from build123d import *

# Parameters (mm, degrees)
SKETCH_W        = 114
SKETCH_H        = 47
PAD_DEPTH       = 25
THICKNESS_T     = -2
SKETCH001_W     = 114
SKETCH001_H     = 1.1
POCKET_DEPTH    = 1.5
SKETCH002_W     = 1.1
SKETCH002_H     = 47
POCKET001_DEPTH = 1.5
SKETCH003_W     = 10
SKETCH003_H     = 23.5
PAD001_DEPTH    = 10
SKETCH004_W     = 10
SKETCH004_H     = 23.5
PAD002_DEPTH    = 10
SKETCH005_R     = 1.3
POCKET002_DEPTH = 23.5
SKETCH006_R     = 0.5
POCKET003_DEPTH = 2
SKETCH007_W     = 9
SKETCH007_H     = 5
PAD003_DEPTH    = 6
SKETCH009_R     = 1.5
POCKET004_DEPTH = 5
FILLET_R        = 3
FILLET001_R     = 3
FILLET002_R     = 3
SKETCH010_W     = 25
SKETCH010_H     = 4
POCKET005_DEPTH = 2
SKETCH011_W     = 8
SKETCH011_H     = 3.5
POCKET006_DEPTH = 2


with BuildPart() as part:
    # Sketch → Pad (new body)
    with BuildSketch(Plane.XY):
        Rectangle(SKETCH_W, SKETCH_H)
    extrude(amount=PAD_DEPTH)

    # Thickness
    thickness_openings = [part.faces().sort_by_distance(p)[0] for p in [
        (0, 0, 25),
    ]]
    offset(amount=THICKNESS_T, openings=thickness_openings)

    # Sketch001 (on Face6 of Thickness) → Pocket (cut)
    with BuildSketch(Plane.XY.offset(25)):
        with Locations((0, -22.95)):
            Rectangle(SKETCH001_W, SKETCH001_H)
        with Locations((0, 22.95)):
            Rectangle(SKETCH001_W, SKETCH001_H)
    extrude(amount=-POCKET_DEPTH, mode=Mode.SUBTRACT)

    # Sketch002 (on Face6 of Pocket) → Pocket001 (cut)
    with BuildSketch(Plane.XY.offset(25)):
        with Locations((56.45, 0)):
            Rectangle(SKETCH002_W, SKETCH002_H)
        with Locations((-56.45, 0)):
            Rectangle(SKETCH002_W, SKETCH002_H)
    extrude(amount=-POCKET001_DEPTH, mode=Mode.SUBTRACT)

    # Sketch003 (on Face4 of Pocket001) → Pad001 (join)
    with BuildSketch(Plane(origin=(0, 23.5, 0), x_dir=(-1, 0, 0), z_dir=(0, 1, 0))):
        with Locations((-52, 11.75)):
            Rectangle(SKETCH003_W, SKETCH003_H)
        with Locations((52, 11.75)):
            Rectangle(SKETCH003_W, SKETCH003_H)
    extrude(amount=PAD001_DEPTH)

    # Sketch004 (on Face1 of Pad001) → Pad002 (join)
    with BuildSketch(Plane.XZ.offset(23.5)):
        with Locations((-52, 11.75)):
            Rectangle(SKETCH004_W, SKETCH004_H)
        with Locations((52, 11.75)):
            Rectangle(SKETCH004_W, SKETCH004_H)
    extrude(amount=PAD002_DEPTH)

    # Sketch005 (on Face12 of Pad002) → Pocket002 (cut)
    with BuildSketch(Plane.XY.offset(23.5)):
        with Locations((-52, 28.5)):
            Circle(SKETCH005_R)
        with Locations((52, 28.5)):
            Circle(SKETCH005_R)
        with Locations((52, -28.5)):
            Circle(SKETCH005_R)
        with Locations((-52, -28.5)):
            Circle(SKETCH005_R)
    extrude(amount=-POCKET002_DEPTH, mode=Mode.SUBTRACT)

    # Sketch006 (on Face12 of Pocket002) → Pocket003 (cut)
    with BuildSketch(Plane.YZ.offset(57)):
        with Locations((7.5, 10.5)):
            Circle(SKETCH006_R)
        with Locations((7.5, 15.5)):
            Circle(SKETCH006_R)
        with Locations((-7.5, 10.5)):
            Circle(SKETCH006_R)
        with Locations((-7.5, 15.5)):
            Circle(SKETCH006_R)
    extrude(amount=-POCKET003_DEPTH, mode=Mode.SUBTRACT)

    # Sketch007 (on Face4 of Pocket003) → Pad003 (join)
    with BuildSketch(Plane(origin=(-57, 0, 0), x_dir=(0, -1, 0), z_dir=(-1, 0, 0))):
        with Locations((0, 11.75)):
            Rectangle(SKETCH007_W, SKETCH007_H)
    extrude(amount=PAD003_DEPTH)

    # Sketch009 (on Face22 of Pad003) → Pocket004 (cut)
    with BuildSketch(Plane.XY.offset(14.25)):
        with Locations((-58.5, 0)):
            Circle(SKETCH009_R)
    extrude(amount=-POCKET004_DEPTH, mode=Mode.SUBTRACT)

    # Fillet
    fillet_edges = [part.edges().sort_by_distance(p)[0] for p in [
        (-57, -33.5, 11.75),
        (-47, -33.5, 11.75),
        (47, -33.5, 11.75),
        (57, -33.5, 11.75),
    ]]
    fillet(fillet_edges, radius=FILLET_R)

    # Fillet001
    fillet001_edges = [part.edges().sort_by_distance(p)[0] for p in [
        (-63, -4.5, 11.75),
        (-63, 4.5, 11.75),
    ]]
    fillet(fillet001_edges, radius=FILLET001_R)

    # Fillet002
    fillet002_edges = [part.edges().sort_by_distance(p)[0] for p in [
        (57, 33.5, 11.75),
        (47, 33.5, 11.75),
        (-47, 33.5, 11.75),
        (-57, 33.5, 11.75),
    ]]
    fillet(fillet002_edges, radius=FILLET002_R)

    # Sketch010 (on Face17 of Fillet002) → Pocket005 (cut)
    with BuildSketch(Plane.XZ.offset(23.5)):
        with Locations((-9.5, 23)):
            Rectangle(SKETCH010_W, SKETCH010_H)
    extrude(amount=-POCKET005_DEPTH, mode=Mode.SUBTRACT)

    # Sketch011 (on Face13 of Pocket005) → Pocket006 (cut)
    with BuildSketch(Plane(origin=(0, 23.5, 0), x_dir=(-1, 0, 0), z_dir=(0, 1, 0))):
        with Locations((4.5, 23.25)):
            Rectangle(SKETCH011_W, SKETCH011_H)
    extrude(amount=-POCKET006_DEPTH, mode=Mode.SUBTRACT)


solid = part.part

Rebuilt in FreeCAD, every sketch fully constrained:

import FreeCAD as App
import Part
import Sketcher

V = App.Vector


def edges_at(feature, points):
    """Names of the edges that pass closest to the given points."""
    edges = feature.Shape.Edges
    near = lambda p: min(range(len(edges)), key=lambda i: edges[i].distToShape(Part.Vertex(*p))[0])
    return sorted({f"Edge{near(p) + 1}" for p in points})


def faces_at(feature, points):
    """Names of the faces that lie closest to the given points."""
    faces = feature.Shape.Faces
    near = lambda p: min(range(len(faces)), key=lambda i: faces[i].distToShape(Part.Vertex(*p))[0])
    return sorted({f"Face{near(p) + 1}" for p in points})


def add_polygon(sketch, points):
    """Adds a closed chain of lines whose ends are joined by coincident constraints."""
    first, n = sketch.GeometryCount, len(points)
    for a, b in zip(points, points[1:] + points[:1]):
        sketch.addGeometry(Part.LineSegment(App.Vector(*a, 0), App.Vector(*b, 0)), False)
    for i in range(n):
        sketch.addConstraint(Sketcher.Constraint("Coincident", first + i, 2, first + (i + 1) % n, 1))

doc = App.newDocument("Part")
body = doc.addObject("PartDesign::Body", "Body")

# Sketch on XY plane
sketch1 = body.newObject("Sketcher::SketchObject", "Sketch")
sketch1.AttachmentSupport = (doc.getObject("XY_Plane"), [""])
sketch1.MapMode = "FlatFace"
add_polygon(sketch1, [(-57, 23.5), (-57, -23.5), (57, -23.5), (57, 23.5)])  # lines 0-3
sketch1.addConstraint([
    Sketcher.Constraint("Vertical", 0),
    Sketcher.Constraint("Horizontal", 1),
    Sketcher.Constraint("Vertical", 2),
    Sketcher.Constraint("Horizontal", 3),
    Sketcher.Constraint("Symmetric", 0, 2, 2, 2, -1, 1),
    Sketcher.Constraint("DistanceX", 1, 1, 1, 2, 114.0),
    Sketcher.Constraint("DistanceY", 0, 2, 0, 1, 47.0),
])
pad1 = body.newObject("PartDesign::Pad", "Pad")
pad1.Profile = sketch1
pad1.Length = 25
doc.recompute()

thickness = body.newObject("PartDesign::Thickness", "Thickness")
thickness.Base = (pad1, faces_at(pad1, [(0, 0, 25)]))
thickness.Value = 2
thickness.Reversed = True
thickness.Join = "Arc"

# Sketch on XY plane
sketch2 = body.newObject("Sketcher::SketchObject", "Sketch001")
sketch2.AttachmentSupport = (doc.getObject("XY_Plane"), [""])
sketch2.MapMode = "FlatFace"
sketch2.AttachmentOffset = App.Placement(V(0, 0, 25), App.Rotation())
add_polygon(sketch2, [(-57, -22.4), (-57, -23.5), (57, -23.5), (57, -22.4)])  # lines 0-3
add_polygon(sketch2, [(-57, 23.5), (-57, 22.4), (57, 22.4), (57, 23.5)])  # lines 4-7
sketch2.addConstraint([
    Sketcher.Constraint("Vertical", 0),
    Sketcher.Constraint("Horizontal", 1),
    Sketcher.Constraint("Vertical", 2),
    Sketcher.Constraint("Horizontal", 3),
    Sketcher.Constraint("Vertical", 4),
    Sketcher.Constraint("Horizontal", 5),
    Sketcher.Constraint("Vertical", 6),
    Sketcher.Constraint("Horizontal", 7),
    Sketcher.Constraint("Symmetric", 2, 2, 4, 2, -1, 1),
    Sketcher.Constraint("Symmetric", 0, 2, 6, 2, -1, 1),
    Sketcher.Constraint("Vertical", 3, 2, 4, 2),
    Sketcher.Constraint("DistanceX", 1, 1, 1, 2, 114.0),
    Sketcher.Constraint("DistanceY", 0, 2, 0, 1, 1.1),
    Sketcher.Constraint("DistanceY", 1, 2, 6, 2, 47.0),
])
pocket1 = body.newObject("PartDesign::Pocket", "Pocket")
pocket1.Profile = sketch2
pocket1.Length = 1.5

# Sketch on XY plane
sketch3 = body.newObject("Sketcher::SketchObject", "Sketch002")
sketch3.AttachmentSupport = (doc.getObject("XY_Plane"), [""])
sketch3.MapMode = "FlatFace"
sketch3.AttachmentOffset = App.Placement(V(0, 0, 25), App.Rotation())
add_polygon(sketch3, [(55.9, 23.5), (55.9, -23.5), (57, -23.5), (57, 23.5)])  # lines 0-3
add_polygon(sketch3, [(-57, 23.5), (-57, -23.5), (-55.9, -23.5), (-55.9, 23.5)])  # lines 4-7
sketch3.addConstraint([
    Sketcher.Constraint("Vertical", 0),
    Sketcher.Constraint("Horizontal", 1),
    Sketcher.Constraint("Vertical", 2),
    Sketcher.Constraint("Horizontal", 3),
    Sketcher.Constraint("Vertical", 4),
    Sketcher.Constraint("Horizontal", 5),
    Sketcher.Constraint("Vertical", 6),
    Sketcher.Constraint("Horizontal", 7),
    Sketcher.Constraint("Symmetric", 2, 2, 4, 2, -1, 1),
    Sketcher.Constraint("Symmetric", 0, 2, 6, 2, -1, 1),
    Sketcher.Constraint("Horizontal", 1, 2, 4, 2),
    Sketcher.Constraint("DistanceY", 0, 2, 0, 1, 47.0),
    Sketcher.Constraint("DistanceX", 1, 1, 1, 2, 1.1),
    Sketcher.Constraint("DistanceX", -1, 1, 1, 2, 57.0),
])
pocket2 = body.newObject("PartDesign::Pocket", "Pocket001")
pocket2.Profile = sketch3
pocket2.Length = 1.5

# Sketch on XZ plane
sketch4 = body.newObject("Sketcher::SketchObject", "Sketch003")
sketch4.AttachmentSupport = (doc.getObject("XZ_Plane"), [""])
sketch4.MapMode = "FlatFace"
sketch4.AttachmentOffset = App.Placement(V(0, 0, -23.5), App.Rotation())
add_polygon(sketch4, [(57, 23.5), (57, 0), (47, 0), (47, 23.5)])  # lines 0-3
add_polygon(sketch4, [(-47, 23.5), (-47, 0), (-57, 0), (-57, 23.5)])  # lines 4-7
sketch4.addConstraint([
    Sketcher.Constraint("Vertical", 0),
    Sketcher.Constraint("Horizontal", 1),
    Sketcher.Constraint("Vertical", 2),
    Sketcher.Constraint("Horizontal", 3),
    Sketcher.Constraint("Vertical", 4),
    Sketcher.Constraint("Horizontal", 5),
    Sketcher.Constraint("Vertical", 6),
    Sketcher.Constraint("Horizontal", 7),
    Sketcher.Constraint("Symmetric", 1, 2, 4, 2, -1, 1),
    Sketcher.Constraint("Symmetric", 0, 2, 5, 2, -2),
    Sketcher.Constraint("Horizontal", 3, 2, 6, 2),
    Sketcher.Constraint("DistanceX", 1, 2, 1, 1, 10.0),
    Sketcher.Constraint("DistanceY", 0, 2, 0, 1, 23.5),
    Sketcher.Constraint("DistanceX", -1, 1, 0, 2, 57.0),
])
pad2 = body.newObject("PartDesign::Pad", "Pad001")
pad2.Profile = sketch4
pad2.Length = 10
pad2.Reversed = True

# Sketch on XZ plane
sketch5 = body.newObject("Sketcher::SketchObject", "Sketch004")
sketch5.AttachmentSupport = (doc.getObject("XZ_Plane"), [""])
sketch5.MapMode = "FlatFace"
sketch5.AttachmentOffset = App.Placement(V(0, 0, 23.5), App.Rotation())
add_polygon(sketch5, [(-57, 23.5), (-57, 0), (-47, 0), (-47, 23.5)])  # lines 0-3
add_polygon(sketch5, [(47, 23.5), (47, 0), (57, 0), (57, 23.5)])  # lines 4-7
sketch5.addConstraint([
    Sketcher.Constraint("Vertical", 0),
    Sketcher.Constraint("Horizontal", 1),
    Sketcher.Constraint("Vertical", 2),
    Sketcher.Constraint("Horizontal", 3),
    Sketcher.Constraint("Vertical", 4),
    Sketcher.Constraint("Horizontal", 5),
    Sketcher.Constraint("Vertical", 6),
    Sketcher.Constraint("Horizontal", 7),
    Sketcher.Constraint("Symmetric", 1, 2, 4, 2, -1, 1),
    Sketcher.Constraint("Symmetric", 0, 2, 5, 2, -2),
    Sketcher.Constraint("Horizontal", 3, 2, 6, 2),
    Sketcher.Constraint("DistanceX", 1, 1, 1, 2, 10.0),
    Sketcher.Constraint("DistanceY", 0, 2, 0, 1, 23.5),
    Sketcher.Constraint("DistanceX", 0, 2, -1, 1, 57.0),
])
pad3 = body.newObject("PartDesign::Pad", "Pad002")
pad3.Profile = sketch5
pad3.Length = 10

# Sketch on XY plane
sketch6 = body.newObject("Sketcher::SketchObject", "Sketch005")
sketch6.AttachmentSupport = (doc.getObject("XY_Plane"), [""])
sketch6.MapMode = "FlatFace"
sketch6.AttachmentOffset = App.Placement(V(0, 0, 23.5), App.Rotation())
sketch6.addGeometry([
    Part.Circle(V(-52, 28.5, 0), V(0, 0, 1), 1.3),
    Part.Circle(V(52, 28.5, 0), V(0, 0, 1), 1.3),
    Part.Circle(V(52, -28.5, 0), V(0, 0, 1), 1.3),
    Part.Circle(V(-52, -28.5, 0), V(0, 0, 1), 1.3),
], False)
sketch6.addConstraint([
    Sketcher.Constraint("Equal", 0, 1),
    Sketcher.Constraint("Equal", 1, 2),
    Sketcher.Constraint("Equal", 2, 3),
    Sketcher.Constraint("Symmetric", 0, 3, 2, 3, -1, 1),
    Sketcher.Constraint("Symmetric", 1, 3, 3, 3, -1, 1),
    Sketcher.Constraint("Symmetric", 0, 3, 1, 3, -2),
    Sketcher.Constraint("Diameter", 0, 2.6),
    Sketcher.Constraint("DistanceX", 0, 3, -1, 1, 52.0),
    Sketcher.Constraint("DistanceY", 2, 3, 1, 3, 57.0),
])
pocket3 = body.newObject("PartDesign::Pocket", "Pocket002")
pocket3.Profile = sketch6
pocket3.Length = 23.5

# Sketch on YZ plane
sketch7 = body.newObject("Sketcher::SketchObject", "Sketch006")
sketch7.AttachmentSupport = (doc.getObject("YZ_Plane"), [""])
sketch7.MapMode = "FlatFace"
sketch7.AttachmentOffset = App.Placement(V(0, 0, 57), App.Rotation())
sketch7.addGeometry([
    Part.Circle(V(7.5, 10.5, 0), V(0, 0, 1), 0.5),
    Part.Circle(V(7.5, 15.5, 0), V(0, 0, 1), 0.5),
    Part.Circle(V(-7.5, 10.5, 0), V(0, 0, 1), 0.5),
    Part.Circle(V(-7.5, 15.5, 0), V(0, 0, 1), 0.5),
], False)
sketch7.addConstraint([
    Sketcher.Constraint("Equal", 0, 1),
    Sketcher.Constraint("Equal", 1, 2),
    Sketcher.Constraint("Equal", 2, 3),
    Sketcher.Constraint("Symmetric", 0, 3, 2, 3, -2),
    Sketcher.Constraint("Symmetric", 1, 3, 3, 3, -2),
    Sketcher.Constraint("Vertical", 0, 3, 1, 3),
    Sketcher.Constraint("Diameter", 0, 1.0),
    Sketcher.Constraint("DistanceY", 0, 3, 1, 3, 5.0),
    Sketcher.Constraint("DistanceX", 2, 3, 0, 3, 15.0),
    Sketcher.Constraint("DistanceY", -1, 1, 0, 3, 10.5),
])
pocket4 = body.newObject("PartDesign::Pocket", "Pocket003")
pocket4.Profile = sketch7
pocket4.Length = 2

# Sketch on YZ plane
sketch8 = body.newObject("Sketcher::SketchObject", "Sketch007")
sketch8.AttachmentSupport = (doc.getObject("YZ_Plane"), [""])
sketch8.MapMode = "FlatFace"
sketch8.AttachmentOffset = App.Placement(V(0, 0, -57), App.Rotation())
add_polygon(sketch8, [(4.5, 14.25), (4.5, 9.25), (-4.5, 9.25), (-4.5, 14.25)])  # lines 0-3
sketch8.addConstraint([
    Sketcher.Constraint("Vertical", 0),
    Sketcher.Constraint("Horizontal", 1),
    Sketcher.Constraint("Vertical", 2),
    Sketcher.Constraint("Horizontal", 3),
    Sketcher.Constraint("DistanceX", 1, 2, 1, 1, 9.0),
    Sketcher.Constraint("DistanceY", 0, 2, 0, 1, 5.0),
    Sketcher.Constraint("DistanceX", -1, 1, 0, 2, 4.5),
    Sketcher.Constraint("DistanceY", -1, 1, 0, 2, 9.25),
])
pad4 = body.newObject("PartDesign::Pad", "Pad003")
pad4.Profile = sketch8
pad4.Length = 6
pad4.Reversed = True

# Sketch on XY plane
sketch9 = body.newObject("Sketcher::SketchObject", "Sketch008")
sketch9.AttachmentSupport = (doc.getObject("XY_Plane"), [""])
sketch9.MapMode = "FlatFace"
sketch9.AttachmentOffset = App.Placement(V(0, 0, 14.25), App.Rotation())
sketch9.addGeometry(Part.Circle(V(-58.5, 0, 0), V(0, 0, 1), 1.5), False)
sketch9.addConstraint([
    Sketcher.Constraint("PointOnObject", 0, 3, -1),
    Sketcher.Constraint("Diameter", 0, 3.0),
    Sketcher.Constraint("DistanceX", 0, 3, -1, 1, 58.5),
])
pocket5 = body.newObject("PartDesign::Pocket", "Pocket004")
pocket5.Profile = sketch9
pocket5.Length = 5
doc.recompute()

fillet = body.newObject("PartDesign::Fillet", "Fillet")
fillet.Base = (pocket5, edges_at(pocket5, [
    (-57, -33.5, 11.75),
    (-47, -33.5, 11.75),
    (47, -33.5, 11.75),
    (57, -33.5, 11.75),
]))
fillet.Radius = 3
doc.recompute()

fillet2 = body.newObject("PartDesign::Fillet", "Fillet001")
fillet2.Base = (fillet, edges_at(fillet, [(-63, -4.5, 11.75), (-63, 4.5, 11.75)]))
fillet2.Radius = 3
doc.recompute()

fillet3 = body.newObject("PartDesign::Fillet", "Fillet002")
fillet3.Base = (fillet2, edges_at(fillet2, [
    (57, 33.5, 11.75),
    (47, 33.5, 11.75),
    (-47, 33.5, 11.75),
    (-57, 33.5, 11.75),
]))
fillet3.Radius = 3

# Sketch on XZ plane
sketch10 = body.newObject("Sketcher::SketchObject", "Sketch009")
sketch10.AttachmentSupport = (doc.getObject("XZ_Plane"), [""])
sketch10.MapMode = "FlatFace"
sketch10.AttachmentOffset = App.Placement(V(0, 0, 23.5), App.Rotation())
add_polygon(sketch10, [(-22, 25), (-22, 21), (3, 21), (3, 25)])  # lines 0-3
sketch10.addConstraint([
    Sketcher.Constraint("Vertical", 0),
    Sketcher.Constraint("Horizontal", 1),
    Sketcher.Constraint("Vertical", 2),
    Sketcher.Constraint("Horizontal", 3),
    Sketcher.Constraint("DistanceX", 1, 1, 1, 2, 25.0),
    Sketcher.Constraint("DistanceY", 0, 2, 0, 1, 4.0),
    Sketcher.Constraint("DistanceX", 0, 2, -1, 1, 22.0),
    Sketcher.Constraint("DistanceY", -1, 1, 0, 2, 21.0),
])
pocket6 = body.newObject("PartDesign::Pocket", "Pocket005")
pocket6.Profile = sketch10
pocket6.Length = 2

# Sketch on XZ plane
sketch11 = body.newObject("Sketcher::SketchObject", "Sketch010")
sketch11.AttachmentSupport = (doc.getObject("XZ_Plane"), [""])
sketch11.MapMode = "FlatFace"
sketch11.AttachmentOffset = App.Placement(V(0, 0, -23.5), App.Rotation())
add_polygon(sketch11, [(-0.5, 25), (-0.5, 21.5), (-8.5, 21.5), (-8.5, 25)])  # lines 0-3
sketch11.addConstraint([
    Sketcher.Constraint("Vertical", 0),
    Sketcher.Constraint("Horizontal", 1),
    Sketcher.Constraint("Vertical", 2),
    Sketcher.Constraint("Horizontal", 3),
    Sketcher.Constraint("DistanceX", 1, 2, 1, 1, 8.0),
    Sketcher.Constraint("DistanceY", 0, 2, 0, 1, 3.5),
    Sketcher.Constraint("DistanceY", -1, 1, 2, 2, 25.0),
    Sketcher.Constraint("DistanceX", 0, 2, -1, 1, 0.5),
])
pocket7 = body.newObject("PartDesign::Pocket", "Pocket006")
pocket7.Profile = sketch11
pocket7.Length = 2
pocket7.Reversed = True

doc.recompute()
